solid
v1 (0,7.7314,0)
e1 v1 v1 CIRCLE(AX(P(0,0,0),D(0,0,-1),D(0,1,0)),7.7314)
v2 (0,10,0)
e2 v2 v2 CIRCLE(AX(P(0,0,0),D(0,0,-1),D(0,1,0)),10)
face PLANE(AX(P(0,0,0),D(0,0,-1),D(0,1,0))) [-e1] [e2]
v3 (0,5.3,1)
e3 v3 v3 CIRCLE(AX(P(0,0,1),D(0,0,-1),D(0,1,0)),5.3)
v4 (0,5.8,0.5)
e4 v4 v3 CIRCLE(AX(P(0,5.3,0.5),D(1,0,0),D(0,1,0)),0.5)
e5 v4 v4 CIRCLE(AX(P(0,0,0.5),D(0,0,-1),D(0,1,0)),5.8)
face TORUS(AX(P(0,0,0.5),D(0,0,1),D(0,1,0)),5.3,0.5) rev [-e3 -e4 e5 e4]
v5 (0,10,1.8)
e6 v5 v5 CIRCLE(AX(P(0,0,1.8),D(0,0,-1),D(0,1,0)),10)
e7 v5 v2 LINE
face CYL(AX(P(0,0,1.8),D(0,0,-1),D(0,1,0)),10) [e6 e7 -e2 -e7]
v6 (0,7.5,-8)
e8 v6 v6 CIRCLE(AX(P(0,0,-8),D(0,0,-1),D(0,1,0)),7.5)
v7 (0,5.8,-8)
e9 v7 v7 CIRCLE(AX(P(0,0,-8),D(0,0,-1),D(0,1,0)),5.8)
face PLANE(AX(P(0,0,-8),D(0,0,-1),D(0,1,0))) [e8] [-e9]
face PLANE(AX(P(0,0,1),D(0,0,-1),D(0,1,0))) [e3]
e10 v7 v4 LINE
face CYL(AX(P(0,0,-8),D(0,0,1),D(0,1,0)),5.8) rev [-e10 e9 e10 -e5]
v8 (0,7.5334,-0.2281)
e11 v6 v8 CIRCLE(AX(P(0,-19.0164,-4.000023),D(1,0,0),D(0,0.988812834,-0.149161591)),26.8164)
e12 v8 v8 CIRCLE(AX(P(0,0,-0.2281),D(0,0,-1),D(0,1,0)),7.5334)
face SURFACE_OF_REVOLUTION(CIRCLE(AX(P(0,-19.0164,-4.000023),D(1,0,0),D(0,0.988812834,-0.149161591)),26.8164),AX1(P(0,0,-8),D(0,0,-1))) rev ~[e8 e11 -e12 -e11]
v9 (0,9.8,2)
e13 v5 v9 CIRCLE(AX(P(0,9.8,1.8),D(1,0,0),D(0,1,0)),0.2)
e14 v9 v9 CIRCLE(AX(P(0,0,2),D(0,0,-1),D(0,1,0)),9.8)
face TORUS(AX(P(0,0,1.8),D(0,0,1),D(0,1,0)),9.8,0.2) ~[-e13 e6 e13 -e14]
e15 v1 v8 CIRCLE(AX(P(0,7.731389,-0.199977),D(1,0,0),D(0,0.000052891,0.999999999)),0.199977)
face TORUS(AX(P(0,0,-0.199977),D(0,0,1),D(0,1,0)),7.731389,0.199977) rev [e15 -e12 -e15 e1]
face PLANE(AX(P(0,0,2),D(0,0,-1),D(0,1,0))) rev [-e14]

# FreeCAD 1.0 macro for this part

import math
import FreeCAD as App
import Part
import Sketcher
from FreeCAD import Vector
Q = App.Units.Quantity

doc = App.newDocument("Part")
body = doc.addObject("PartDesign::Body", "Body")

sketch1 = doc.addObject("Sketcher::SketchObject", "Sketch")
body.addObject(sketch1)
sketch1.AttachmentSupport = (doc.YZ_Plane, [""])
sketch1.MapMode = "FlatFace"
sketch1.addGeometry(Part.LineSegment(Vector(0, 2, 0), Vector(0, 1, 0)), False)
sketch1.addGeometry(Part.LineSegment(Vector(0, 1, 0), Vector(5.3, 1, 0)), False)
sketch1.addGeometry(Part.ArcOfCircle(Part.Circle(Vector(5.3, 0.5, 0), Vector(0, 0, 1), 0.5), math.radians(0), math.radians(90)), False)
sketch1.addGeometry(Part.LineSegment(Vector(5.8, 0.5, 0), Vector(5.8, -8, 0)), False)
sketch1.addGeometry(Part.LineSegment(Vector(5.8, -8, 0), Vector(7.5, -8, 0)), False)
sketch1.addGeometry(Part.ArcOfCircle(Part.Circle(Vector(-19.02, -4, 0), Vector(0, 0, 1), 26.82), math.radians(-8.58), math.radians(8.09)), False)
sketch1.addGeometry(Part.ArcOfCircle(Part.Circle(Vector(7.73, -0.2, 0), Vector(0, 0, 1), 0.2), math.radians(90), math.radians(188)), False)
sketch1.addGeometry(Part.LineSegment(Vector(7.73, 0, 0), Vector(10, 0, 0)), False)
sketch1.addGeometry(Part.LineSegment(Vector(10, 0, 0), Vector(10, 1.8, 0)), False)
sketch1.addGeometry(Part.ArcOfCircle(Part.Circle(Vector(9.8, 1.8, 0), Vector(0, 0, 1), 0.2), math.radians(0), math.radians(90)), False)
sketch1.addGeometry(Part.LineSegment(Vector(9.8, 2, 0), Vector(0, 2, 0)), False)
sketch1.addConstraint(Sketcher.Constraint("Coincident", 0, 2, 1, 1))
sketch1.addConstraint(Sketcher.Constraint("Tangent", 1, 2, 2, 2))
sketch1.addConstraint(Sketcher.Constraint("Tangent", 2, 1, 3, 1))
sketch1.addConstraint(Sketcher.Constraint("Coincident", 3, 2, 4, 1))
sketch1.addConstraint(Sketcher.Constraint("Coincident", 4, 2, 5, 1))
sketch1.addConstraint(Sketcher.Constraint("Tangent", 5, 2, 6, 2))
sketch1.addConstraint(Sketcher.Constraint("Tangent", 6, 1, 7, 1))
sketch1.addConstraint(Sketcher.Constraint("Coincident", 7, 2, 8, 1))
sketch1.addConstraint(Sketcher.Constraint("Tangent", 8, 2, 9, 1))
sketch1.addConstraint(Sketcher.Constraint("Tangent", 9, 2, 10, 1))
sketch1.addConstraint(Sketcher.Constraint("Coincident", 10, 2, 0, 1))
sketch1.addConstraint(Sketcher.Constraint("Vertical", 0))
sketch1.addConstraint(Sketcher.Constraint("Horizontal", 1))
sketch1.addConstraint(Sketcher.Constraint("Vertical", 3))
sketch1.addConstraint(Sketcher.Constraint("Horizontal", 4))
sketch1.addConstraint(Sketcher.Constraint("Horizontal", 7))
sketch1.addConstraint(Sketcher.Constraint("Vertical", 8))
sketch1.addConstraint(Sketcher.Constraint("Horizontal", 10))
sketch1.addConstraint(Sketcher.Constraint("Equal", 6, 9))
sketch1.addConstraint(Sketcher.Constraint("PointOnObject", 0, 2, -2))
sketch1.addConstraint(Sketcher.Constraint("PointOnObject", 6, 1, -1))
sketch1.addConstraint(Sketcher.Constraint("Radius", 2, Q("0.5 mm")))
sketch1.addConstraint(Sketcher.Constraint("Radius", 6, Q("0.2 mm")))
sketch1.addConstraint(Sketcher.Constraint("DistanceY", 0, 2, 0, 1, Q("1 mm")))
sketch1.addConstraint(Sketcher.Constraint("DistanceX", 1, 1, 1, 2, Q("5.3 mm")))
sketch1.addConstraint(Sketcher.Constraint("DistanceX", 4, 1, 4, 2, Q("1.7 mm")))
sketch1.addConstraint(Sketcher.Constraint("DistanceX", 10, 2, 10, 1, Q("9.8 mm")))
sketch1.addConstraint(Sketcher.Constraint("DistanceY", 3, 2, 3, 1, Q("8.5 mm")))
sketch1.addConstraint(Sketcher.Constraint("DistanceY", 8, 1, 8, 2, Q("1.8 mm")))
sketch1.addConstraint(Sketcher.Constraint("DistanceY", 5, 3, -1, 1, Q("4 mm")))
sketch1.addConstraint(Sketcher.Constraint("Radius", 5, Q("26.8167 mm")))
revolution = doc.addObject("PartDesign::Revolution", "Revolution")
body.addObject(revolution)
revolution.Profile = sketch1
revolution.ReferenceAxis = (sketch1, ["V_Axis"])
revolution.Angle = 360

doc.recompute()
